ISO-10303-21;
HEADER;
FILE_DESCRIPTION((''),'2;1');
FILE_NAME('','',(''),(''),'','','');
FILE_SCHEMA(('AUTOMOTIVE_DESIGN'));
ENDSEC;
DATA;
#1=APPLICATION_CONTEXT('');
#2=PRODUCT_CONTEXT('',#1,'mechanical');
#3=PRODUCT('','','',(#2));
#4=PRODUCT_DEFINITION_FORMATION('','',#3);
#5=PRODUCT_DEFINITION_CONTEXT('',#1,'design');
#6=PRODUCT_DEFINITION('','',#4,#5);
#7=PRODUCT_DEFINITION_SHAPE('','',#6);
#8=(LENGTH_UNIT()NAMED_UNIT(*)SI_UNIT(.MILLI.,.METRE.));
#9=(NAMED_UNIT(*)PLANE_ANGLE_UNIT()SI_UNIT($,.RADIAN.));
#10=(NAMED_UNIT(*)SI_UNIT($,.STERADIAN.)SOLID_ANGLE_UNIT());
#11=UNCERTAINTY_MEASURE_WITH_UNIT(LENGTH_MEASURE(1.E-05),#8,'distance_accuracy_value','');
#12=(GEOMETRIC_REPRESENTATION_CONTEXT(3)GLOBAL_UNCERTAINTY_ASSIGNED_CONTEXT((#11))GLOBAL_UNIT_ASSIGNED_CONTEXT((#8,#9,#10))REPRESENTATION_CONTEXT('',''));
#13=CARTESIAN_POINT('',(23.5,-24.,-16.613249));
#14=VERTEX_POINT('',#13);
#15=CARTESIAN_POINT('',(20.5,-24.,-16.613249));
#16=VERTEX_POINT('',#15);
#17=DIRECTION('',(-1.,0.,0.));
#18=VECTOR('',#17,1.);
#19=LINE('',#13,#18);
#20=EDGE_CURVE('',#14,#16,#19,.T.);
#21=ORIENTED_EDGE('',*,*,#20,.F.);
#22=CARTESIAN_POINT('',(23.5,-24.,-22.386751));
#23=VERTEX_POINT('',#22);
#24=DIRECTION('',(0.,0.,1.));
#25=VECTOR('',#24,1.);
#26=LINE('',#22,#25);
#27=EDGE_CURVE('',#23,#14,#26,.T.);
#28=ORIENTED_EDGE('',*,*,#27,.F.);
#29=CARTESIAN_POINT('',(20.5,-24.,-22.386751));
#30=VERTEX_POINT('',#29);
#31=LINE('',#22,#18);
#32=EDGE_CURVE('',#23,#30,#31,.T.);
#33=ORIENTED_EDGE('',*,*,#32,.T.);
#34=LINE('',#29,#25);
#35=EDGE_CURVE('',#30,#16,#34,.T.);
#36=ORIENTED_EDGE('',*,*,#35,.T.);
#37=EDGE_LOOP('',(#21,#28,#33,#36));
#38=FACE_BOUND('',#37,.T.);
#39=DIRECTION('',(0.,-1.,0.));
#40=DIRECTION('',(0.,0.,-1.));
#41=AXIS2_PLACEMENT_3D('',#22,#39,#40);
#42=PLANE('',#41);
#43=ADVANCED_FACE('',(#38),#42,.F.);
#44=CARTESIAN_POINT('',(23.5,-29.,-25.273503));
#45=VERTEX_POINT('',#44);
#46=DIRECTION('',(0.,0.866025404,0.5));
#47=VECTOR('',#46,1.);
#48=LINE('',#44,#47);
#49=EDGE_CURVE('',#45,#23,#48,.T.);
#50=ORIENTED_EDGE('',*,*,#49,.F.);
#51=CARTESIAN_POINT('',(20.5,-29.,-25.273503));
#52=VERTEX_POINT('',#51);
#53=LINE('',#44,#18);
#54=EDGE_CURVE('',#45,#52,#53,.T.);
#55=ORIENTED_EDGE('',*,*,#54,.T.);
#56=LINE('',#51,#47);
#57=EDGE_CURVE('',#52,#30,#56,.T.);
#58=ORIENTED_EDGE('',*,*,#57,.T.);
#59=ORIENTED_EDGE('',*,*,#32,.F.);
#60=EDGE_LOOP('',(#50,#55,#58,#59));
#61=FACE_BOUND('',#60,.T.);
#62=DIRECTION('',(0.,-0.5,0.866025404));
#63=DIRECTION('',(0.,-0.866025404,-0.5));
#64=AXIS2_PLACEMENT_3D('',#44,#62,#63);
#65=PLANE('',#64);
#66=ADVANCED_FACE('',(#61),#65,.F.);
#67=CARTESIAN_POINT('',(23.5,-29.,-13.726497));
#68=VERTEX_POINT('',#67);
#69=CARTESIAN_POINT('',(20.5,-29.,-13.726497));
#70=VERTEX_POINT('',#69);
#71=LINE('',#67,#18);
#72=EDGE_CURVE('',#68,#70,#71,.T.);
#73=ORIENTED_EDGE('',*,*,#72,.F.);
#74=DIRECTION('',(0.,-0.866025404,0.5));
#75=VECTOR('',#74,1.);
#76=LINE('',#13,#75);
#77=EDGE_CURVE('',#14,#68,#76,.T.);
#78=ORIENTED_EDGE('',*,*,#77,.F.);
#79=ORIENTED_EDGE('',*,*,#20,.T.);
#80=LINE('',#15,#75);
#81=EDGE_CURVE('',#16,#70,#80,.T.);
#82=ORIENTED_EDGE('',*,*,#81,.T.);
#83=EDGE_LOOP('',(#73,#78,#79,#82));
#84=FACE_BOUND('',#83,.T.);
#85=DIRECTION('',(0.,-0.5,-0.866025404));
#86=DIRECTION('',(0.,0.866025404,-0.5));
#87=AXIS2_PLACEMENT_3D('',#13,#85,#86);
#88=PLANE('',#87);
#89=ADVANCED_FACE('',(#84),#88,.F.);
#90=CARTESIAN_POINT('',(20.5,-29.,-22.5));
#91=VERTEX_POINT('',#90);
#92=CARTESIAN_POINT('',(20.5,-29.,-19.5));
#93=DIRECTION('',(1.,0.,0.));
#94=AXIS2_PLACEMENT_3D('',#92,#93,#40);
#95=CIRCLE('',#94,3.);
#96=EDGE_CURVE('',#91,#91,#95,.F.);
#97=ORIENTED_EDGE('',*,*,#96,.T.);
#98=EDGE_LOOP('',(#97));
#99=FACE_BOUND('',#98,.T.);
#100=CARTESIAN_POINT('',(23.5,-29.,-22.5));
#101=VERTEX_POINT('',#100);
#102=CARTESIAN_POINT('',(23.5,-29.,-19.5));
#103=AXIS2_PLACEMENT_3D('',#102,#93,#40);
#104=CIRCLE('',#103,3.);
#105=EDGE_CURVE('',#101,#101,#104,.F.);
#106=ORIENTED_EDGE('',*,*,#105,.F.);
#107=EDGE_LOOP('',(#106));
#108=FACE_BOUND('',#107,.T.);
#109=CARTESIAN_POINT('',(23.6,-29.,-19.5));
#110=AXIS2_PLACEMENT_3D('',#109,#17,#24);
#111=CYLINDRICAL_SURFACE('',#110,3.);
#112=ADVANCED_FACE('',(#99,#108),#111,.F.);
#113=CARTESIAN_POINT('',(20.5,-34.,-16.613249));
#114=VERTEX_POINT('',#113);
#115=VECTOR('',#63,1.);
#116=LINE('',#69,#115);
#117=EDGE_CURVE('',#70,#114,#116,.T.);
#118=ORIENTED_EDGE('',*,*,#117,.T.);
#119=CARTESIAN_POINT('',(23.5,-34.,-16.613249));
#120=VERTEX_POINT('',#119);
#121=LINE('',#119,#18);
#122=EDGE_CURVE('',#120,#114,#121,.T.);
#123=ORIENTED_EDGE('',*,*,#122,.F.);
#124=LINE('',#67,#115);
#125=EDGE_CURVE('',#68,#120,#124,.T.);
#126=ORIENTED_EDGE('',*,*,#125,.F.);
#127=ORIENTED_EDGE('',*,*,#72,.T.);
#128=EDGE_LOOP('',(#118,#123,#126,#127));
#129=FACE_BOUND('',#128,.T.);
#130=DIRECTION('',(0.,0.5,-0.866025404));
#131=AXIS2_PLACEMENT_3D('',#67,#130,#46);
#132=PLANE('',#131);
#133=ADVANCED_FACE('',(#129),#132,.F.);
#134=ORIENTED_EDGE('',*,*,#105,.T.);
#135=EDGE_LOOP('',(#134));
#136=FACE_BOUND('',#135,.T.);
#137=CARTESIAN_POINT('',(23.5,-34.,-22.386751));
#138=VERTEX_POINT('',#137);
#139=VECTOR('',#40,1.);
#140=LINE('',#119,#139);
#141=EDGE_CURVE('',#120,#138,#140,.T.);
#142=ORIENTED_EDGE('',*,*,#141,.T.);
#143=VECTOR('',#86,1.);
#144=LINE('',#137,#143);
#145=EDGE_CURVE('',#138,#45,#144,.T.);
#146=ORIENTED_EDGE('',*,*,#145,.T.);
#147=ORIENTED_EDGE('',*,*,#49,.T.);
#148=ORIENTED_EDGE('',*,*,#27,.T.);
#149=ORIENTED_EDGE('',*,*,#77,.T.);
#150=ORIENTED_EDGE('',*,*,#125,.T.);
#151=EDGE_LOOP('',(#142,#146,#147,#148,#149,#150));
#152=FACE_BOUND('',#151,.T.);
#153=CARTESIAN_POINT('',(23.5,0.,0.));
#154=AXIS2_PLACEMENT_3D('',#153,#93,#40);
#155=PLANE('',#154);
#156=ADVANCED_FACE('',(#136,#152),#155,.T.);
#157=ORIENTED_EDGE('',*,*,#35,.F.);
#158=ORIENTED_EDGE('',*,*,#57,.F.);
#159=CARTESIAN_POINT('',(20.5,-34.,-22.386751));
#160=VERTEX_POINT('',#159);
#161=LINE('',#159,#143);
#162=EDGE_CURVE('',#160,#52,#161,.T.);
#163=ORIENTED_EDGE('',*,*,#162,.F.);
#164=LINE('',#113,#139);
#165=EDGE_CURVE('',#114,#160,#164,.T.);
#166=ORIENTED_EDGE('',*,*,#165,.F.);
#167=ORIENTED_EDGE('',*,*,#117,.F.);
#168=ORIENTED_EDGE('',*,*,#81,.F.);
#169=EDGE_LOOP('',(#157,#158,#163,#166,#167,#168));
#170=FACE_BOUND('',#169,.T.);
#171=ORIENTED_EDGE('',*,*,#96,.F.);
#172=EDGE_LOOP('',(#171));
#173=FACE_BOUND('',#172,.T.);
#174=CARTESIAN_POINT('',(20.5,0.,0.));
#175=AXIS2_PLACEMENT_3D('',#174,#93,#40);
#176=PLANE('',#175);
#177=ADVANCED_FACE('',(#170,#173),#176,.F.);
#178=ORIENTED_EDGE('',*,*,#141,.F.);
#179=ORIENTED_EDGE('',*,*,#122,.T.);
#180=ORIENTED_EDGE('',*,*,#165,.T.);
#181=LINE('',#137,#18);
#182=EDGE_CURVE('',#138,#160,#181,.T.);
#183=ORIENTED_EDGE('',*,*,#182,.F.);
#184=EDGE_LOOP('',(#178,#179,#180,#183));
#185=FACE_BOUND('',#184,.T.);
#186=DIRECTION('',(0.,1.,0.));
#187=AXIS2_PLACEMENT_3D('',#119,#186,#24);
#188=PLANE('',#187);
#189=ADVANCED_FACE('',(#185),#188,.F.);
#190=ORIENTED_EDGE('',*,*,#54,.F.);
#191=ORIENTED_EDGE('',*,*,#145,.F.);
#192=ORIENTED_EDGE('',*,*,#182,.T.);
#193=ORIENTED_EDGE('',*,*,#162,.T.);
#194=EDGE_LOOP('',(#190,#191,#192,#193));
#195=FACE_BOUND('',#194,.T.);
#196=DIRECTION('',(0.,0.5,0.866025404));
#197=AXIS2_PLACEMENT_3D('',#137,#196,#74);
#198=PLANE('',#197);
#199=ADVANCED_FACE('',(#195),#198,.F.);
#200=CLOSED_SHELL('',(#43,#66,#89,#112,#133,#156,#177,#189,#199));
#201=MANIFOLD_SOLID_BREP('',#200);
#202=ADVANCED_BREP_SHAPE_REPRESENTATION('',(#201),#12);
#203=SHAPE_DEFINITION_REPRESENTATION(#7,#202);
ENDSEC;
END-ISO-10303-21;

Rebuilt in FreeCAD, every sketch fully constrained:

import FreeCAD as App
import Part
import Sketcher
from FreeCAD import Vector
Q = App.Units.Quantity


def add_polygon(sketch, points):
    """Adds a closed chain of lines whose ends are joined by coincident constraints."""
    first, n = sketch.GeometryCount, len(points)
    for a, b in zip(points, points[1:] + points[:1]):
        sketch.addGeometry(Part.LineSegment(App.Vector(*a, 0), App.Vector(*b, 0)), False)
    for i in range(n):
        sketch.addConstraint(Sketcher.Constraint("Coincident", first + i, 2, first + (i + 1) % n, 1))

doc = App.newDocument("Part")
body = doc.addObject("PartDesign::Body", "Body")

# Sketch on YZ plane
sketch1 = doc.addObject("Sketcher::SketchObject", "Sketch")
body.addObject(sketch1)
sketch1.AttachmentSupport = (doc.YZ_Plane, [""])
sketch1.MapMode = "FlatFace"
sketch1.AttachmentOffset = App.Placement(Vector(0, 0, 20.5), App.Rotation())
add_polygon(sketch1, [(-24, -16.613249), (-29, -13.726497), (-34, -16.613249), (-34, -22.386751), (-29, -25.273503), (-24, -22.386751)])  # lines 0-5
sketch1.addConstraint(Sketcher.Constraint("Vertical", 2))
sketch1.addConstraint(Sketcher.Constraint("Vertical", 5))
sketch1.addConstraint(Sketcher.Constraint("Parallel", 0, 3))
sketch1.addConstraint(Sketcher.Constraint("Parallel", 1, 4))
sketch1.addConstraint(Sketcher.Constraint("Horizontal", 2, 2, 4, 2))
sketch1.addConstraint(Sketcher.Constraint("Horizontal", 1, 2, 5, 2))
sketch1.addConstraint(Sketcher.Constraint("Vertical", 0, 2, 3, 2))
sketch1.addConstraint(Sketcher.Constraint("Angle", 0, Q("150 deg")))
sketch1.addConstraint(Sketcher.Constraint("DistanceX", 0, 2, -1, 1, 29.0))
sketch1.addConstraint(Sketcher.Constraint("DistanceX", 1, 2, -1, 1, 34.0))
sketch1.addConstraint(Sketcher.Constraint("DistanceY", 2, 2, 2, 1, 5.773503))
sketch1.addConstraint(Sketcher.Constraint("DistanceY", 1, 2, -1, 1, 16.613249))
pad1 = doc.addObject("PartDesign::Pad", "Pad")
body.addObject(pad1)
pad1.Profile = sketch1
pad1.Length = 3

# Sketch on YZ plane
sketch2 = doc.addObject("Sketcher::SketchObject", "Sketch001")
body.addObject(sketch2)
sketch2.AttachmentSupport = (doc.YZ_Plane, [""])
sketch2.MapMode = "FlatFace"
sketch2.AttachmentOffset = App.Placement(Vector(0, 0, 20.4), App.Rotation())
sketch2.addGeometry(Part.Circle(Vector(-29, -19.5, 0), Vector(0, 0, 1), 3), False)
sketch2.addConstraint(Sketcher.Constraint("Diameter", 0, 6.0))
sketch2.addConstraint(Sketcher.Constraint("DistanceX", 0, 3, -1, 1, 29.0))
sketch2.addConstraint(Sketcher.Constraint("DistanceY", 0, 3, -1, 1, 19.5))
pocket1 = doc.addObject("PartDesign::Pocket", "Pocket")
body.addObject(pocket1)
pocket1.Profile = sketch2
pocket1.Length = 3.2
pocket1.Reversed = True

doc.recompute()
